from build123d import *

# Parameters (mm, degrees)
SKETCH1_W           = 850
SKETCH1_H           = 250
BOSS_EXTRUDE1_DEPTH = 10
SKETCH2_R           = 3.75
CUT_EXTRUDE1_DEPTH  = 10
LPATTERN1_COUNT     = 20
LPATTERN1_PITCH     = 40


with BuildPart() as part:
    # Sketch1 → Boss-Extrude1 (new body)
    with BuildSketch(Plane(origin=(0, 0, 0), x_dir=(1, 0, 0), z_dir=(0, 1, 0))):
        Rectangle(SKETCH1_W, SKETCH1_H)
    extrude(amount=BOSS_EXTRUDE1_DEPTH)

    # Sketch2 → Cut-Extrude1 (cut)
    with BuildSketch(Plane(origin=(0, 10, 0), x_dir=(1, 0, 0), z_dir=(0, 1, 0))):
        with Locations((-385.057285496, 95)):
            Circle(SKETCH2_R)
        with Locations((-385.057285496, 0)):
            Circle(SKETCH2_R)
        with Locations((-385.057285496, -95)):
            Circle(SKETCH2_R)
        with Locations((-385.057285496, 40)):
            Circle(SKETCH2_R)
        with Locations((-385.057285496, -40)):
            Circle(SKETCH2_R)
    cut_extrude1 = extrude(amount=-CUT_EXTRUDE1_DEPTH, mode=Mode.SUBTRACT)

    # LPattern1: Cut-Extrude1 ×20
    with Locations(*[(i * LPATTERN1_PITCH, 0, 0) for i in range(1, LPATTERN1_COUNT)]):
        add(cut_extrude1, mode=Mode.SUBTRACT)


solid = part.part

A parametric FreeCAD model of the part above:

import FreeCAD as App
import Part
import Sketcher

V = App.Vector
Q = App.Units.Quantity


def add_polygon(sketch, points):
    """Adds a closed chain of lines whose ends are joined by coincident constraints."""
    first, n = sketch.GeometryCount, len(points)
    for a, b in zip(points, points[1:] + points[:1]):
        sketch.addGeometry(Part.LineSegment(App.Vector(*a, 0), App.Vector(*b, 0)), False)
    for i in range(n):
        sketch.addConstraint(Sketcher.Constraint("Coincident", first + i, 2, first + (i + 1) % n, 1))

doc = App.newDocument("Part")
params = doc.addObject("Spreadsheet::Sheet", "Params")
for row, (alias, value) in enumerate([
    ("sketch1_width", "850 mm"),
    ("sketch1_height", "250 mm"),
    ("pad1_length", "10 mm"),
    ("sketch2_diameter", "7.5 mm"),
    ("pocket1_length", "10 mm"),
    ("linearpattern_pitch", "40 mm"),
], start=1):
    params.set(f"A{row}", alias)
    params.set(f"B{row}", "=" + value)
    params.setAlias(f"B{row}", alias)

body = doc.addObject("PartDesign::Body", "Body")

# Sketch on XZ plane
sketch1 = body.newObject("Sketcher::SketchObject", "Sketch")
sketch1.AttachmentSupport = (doc.getObject("XZ_Plane"), [""])
sketch1.MapMode = "FlatFace"
add_polygon(sketch1, [(-425, -125), (-425, 125), (425, 125), (425, -125)])  # lines 0-3
sketch1.addConstraint([
    Sketcher.Constraint("Vertical", 0),
    Sketcher.Constraint("Horizontal", 1),
    Sketcher.Constraint("Vertical", 2),
    Sketcher.Constraint("Horizontal", 3),
    Sketcher.Constraint("Symmetric", 0, 2, 2, 2, -1, 1),
    Sketcher.Constraint("DistanceX", 1, 1, 1, 2, Q("850 mm")),
    Sketcher.Constraint("DistanceY", 0, 1, 0, 2, Q("250 mm")),
])
sketch1.setExpression("Constraints[9]", "Params.sketch1_width")
sketch1.setExpression("Constraints[10]", "Params.sketch1_height")
pad1 = body.newObject("PartDesign::Pad", "Pad")
pad1.Profile = sketch1
pad1.setExpression("Length", "Params.pad1_length")
pad1.Reversed = True

# Sketch on XZ plane
sketch2 = body.newObject("Sketcher::SketchObject", "Sketch001")
sketch2.AttachmentSupport = (doc.getObject("XZ_Plane"), [""])
sketch2.MapMode = "FlatFace"
sketch2.AttachmentOffset = App.Placement(V(0, 0, -10), App.Rotation())
sketch2.addGeometry([
    Part.Circle(V(-385.057285, -95, 0), V(0, 0, 1), 3.75),  # 0
    Part.Circle(V(-385.057285, 0, 0), V(0, 0, 1), 3.75),  # 1
    Part.Circle(V(-385.057285, 95, 0), V(0, 0, 1), 3.75),  # 2
    Part.Circle(V(-385.057285, -40, 0), V(0, 0, 1), 3.75),  # 3
    Part.Circle(V(-385.057285, 40, 0), V(0, 0, 1), 3.75),  # 4
], False)
sketch2.addConstraint([
    Sketcher.Constraint("Equal", 0, 1),
    Sketcher.Constraint("Equal", 1, 2),
    Sketcher.Constraint("Equal", 2, 3),
    Sketcher.Constraint("Equal", 3, 4),
    Sketcher.Constraint("Symmetric", 0, 3, 2, 3, -1),
    Sketcher.Constraint("Symmetric", 3, 3, 4, 3, -1),
    Sketcher.Constraint("PointOnObject", 1, 3, -1),
    Sketcher.Constraint("Vertical", 0, 3, 1, 3),
    Sketcher.Constraint("Vertical", 2, 3, 3, 3),
    Sketcher.Constraint("Diameter", 0, Q("7.5 mm")),
    Sketcher.Constraint("DistanceY", 0, 3, -1, 1, Q("95 mm")),
    Sketcher.Constraint("DistanceY", 3, 3, -1, 1, Q("40 mm")),
    Sketcher.Constraint("DistanceX", 0, 3, -1, 1, Q("385.057285 mm")),
])
sketch2.setExpression("Constraints[9]", "Params.sketch2_diameter")
pocket1 = body.newObject("PartDesign::Pocket", "Pocket")
pocket1.Profile = sketch2
pocket1.setExpression("Length", "Params.pocket1_length")
pocket1.Reversed = True
doc.recompute()

linearpattern = body.newObject("PartDesign::LinearPattern", "LinearPattern")
linearpattern.Originals = [pocket1]
linearpattern.Direction = (doc.getObject("X_Axis"), [""])
linearpattern.Mode = "offset"
linearpattern.setExpression("Offset", "Params.linearpattern_pitch")
linearpattern.Occurrences = 20
body.Tip = linearpattern

doc.recompute()
